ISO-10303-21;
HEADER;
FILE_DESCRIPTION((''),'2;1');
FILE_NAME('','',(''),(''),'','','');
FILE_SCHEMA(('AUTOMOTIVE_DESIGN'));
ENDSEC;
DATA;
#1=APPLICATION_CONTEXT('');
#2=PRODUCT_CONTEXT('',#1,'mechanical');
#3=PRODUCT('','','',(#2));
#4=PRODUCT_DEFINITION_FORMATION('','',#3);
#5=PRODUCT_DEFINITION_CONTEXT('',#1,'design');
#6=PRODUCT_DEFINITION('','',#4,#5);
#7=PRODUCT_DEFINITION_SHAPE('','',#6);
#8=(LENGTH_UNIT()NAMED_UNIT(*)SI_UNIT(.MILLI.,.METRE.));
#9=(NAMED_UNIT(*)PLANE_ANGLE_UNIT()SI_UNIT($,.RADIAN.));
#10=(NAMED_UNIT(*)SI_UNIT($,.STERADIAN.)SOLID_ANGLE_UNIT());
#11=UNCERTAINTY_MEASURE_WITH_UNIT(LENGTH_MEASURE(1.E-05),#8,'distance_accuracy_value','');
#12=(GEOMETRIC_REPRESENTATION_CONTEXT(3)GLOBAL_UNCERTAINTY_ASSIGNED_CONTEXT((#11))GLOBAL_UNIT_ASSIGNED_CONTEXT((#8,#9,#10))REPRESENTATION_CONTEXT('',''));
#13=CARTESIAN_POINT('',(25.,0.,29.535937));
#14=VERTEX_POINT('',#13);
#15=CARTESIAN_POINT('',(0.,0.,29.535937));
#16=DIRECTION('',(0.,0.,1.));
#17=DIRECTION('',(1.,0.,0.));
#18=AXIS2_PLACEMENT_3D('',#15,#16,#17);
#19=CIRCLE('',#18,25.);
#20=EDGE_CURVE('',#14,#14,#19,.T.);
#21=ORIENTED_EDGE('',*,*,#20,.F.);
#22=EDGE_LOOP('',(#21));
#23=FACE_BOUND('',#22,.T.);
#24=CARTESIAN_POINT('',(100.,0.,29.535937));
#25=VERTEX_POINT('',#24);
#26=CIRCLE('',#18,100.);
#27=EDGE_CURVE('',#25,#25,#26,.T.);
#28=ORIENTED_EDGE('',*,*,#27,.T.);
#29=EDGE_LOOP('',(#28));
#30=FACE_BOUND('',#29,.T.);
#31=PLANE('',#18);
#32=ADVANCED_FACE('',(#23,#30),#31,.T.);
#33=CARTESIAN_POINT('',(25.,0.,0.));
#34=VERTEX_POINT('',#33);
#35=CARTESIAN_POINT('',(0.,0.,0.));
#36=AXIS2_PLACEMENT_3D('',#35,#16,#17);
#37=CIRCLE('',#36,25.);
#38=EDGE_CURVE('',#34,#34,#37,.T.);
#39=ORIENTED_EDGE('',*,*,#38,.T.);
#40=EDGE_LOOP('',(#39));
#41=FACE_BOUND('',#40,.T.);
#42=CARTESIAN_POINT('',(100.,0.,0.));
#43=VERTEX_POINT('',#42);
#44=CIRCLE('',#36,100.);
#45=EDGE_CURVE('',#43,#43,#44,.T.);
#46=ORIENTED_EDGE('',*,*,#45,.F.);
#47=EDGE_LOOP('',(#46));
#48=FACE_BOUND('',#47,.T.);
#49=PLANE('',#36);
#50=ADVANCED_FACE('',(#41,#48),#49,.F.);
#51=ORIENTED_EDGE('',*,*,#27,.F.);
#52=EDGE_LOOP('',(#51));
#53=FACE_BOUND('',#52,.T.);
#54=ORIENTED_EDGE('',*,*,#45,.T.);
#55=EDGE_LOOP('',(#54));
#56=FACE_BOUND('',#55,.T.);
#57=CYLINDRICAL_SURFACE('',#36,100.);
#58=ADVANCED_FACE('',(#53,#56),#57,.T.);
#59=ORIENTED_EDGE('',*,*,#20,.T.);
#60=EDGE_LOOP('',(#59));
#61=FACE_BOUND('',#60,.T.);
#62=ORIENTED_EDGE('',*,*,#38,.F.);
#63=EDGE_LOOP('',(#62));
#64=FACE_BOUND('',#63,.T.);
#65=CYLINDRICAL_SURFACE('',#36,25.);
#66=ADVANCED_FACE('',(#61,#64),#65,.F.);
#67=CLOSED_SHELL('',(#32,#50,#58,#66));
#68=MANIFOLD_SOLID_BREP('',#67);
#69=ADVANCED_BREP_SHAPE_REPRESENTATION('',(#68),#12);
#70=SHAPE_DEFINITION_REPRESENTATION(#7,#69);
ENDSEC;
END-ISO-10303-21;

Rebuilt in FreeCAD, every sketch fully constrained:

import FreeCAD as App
import Part
import Sketcher
from FreeCAD import Vector

doc = App.newDocument("Part")
body = doc.addObject("PartDesign::Body", "Body")

# Sketch on XY plane
sketch1 = doc.addObject("Sketcher::SketchObject", "Sketch")
body.addObject(sketch1)
sketch1.AttachmentSupport = (doc.XY_Plane, [""])
sketch1.MapMode = "FlatFace"
sketch1.addGeometry(Part.Circle(Vector(0, 0, 0), Vector(0, 0, 1), 150), False)
sketch1.addConstraint([
    Sketcher.Constraint("Coincident", 0, 3, -1, 1),
    Sketcher.Constraint("Diameter", 0, 300.0),
])
pad1 = doc.addObject("PartDesign::Pad", "Pad")
body.addObject(pad1)
pad1.Profile = sketch1
pad1.Length = 29.535937

# Sketch on XY plane
sketch2 = doc.addObject("Sketcher::SketchObject", "Sketch001")
body.addObject(sketch2)
sketch2.AttachmentSupport = (doc.XY_Plane, [""])
sketch2.MapMode = "FlatFace"
sketch2.AttachmentOffset = App.Placement(Vector(0, 0, 29.535937), App.Rotation())
sketch2.addGeometry(Part.Circle(Vector(0, 0, 0), Vector(0, 0, 1), 25), False)
sketch2.addConstraint([
    Sketcher.Constraint("Coincident", 0, 3, -1, 1),
    Sketcher.Constraint("Diameter", 0, 50.0),
])
pocket1 = doc.addObject("PartDesign::Pocket", "Pocket")
body.addObject(pocket1)
pocket1.Profile = sketch2
pocket1.Length = 29.535937

# Sketch on XY plane
sketch3 = doc.addObject("Sketcher::SketchObject", "Sketch002")
body.addObject(sketch3)
sketch3.AttachmentSupport = (doc.XY_Plane, [""])
sketch3.MapMode = "FlatFace"
sketch3.addGeometry([
    Part.Circle(Vector(0, 0, 0), Vector(0, 0, 1), 150),
    Part.Circle(Vector(0, 0, 0), Vector(0, 0, 1), 100),
], False)
sketch3.addConstraint([
    Sketcher.Constraint("Coincident", 0, 3, -1, 1),
    Sketcher.Constraint("Coincident", 1, 3, -1, 1),
    Sketcher.Constraint("Diameter", 0, 300.0),
    Sketcher.Constraint("Diameter", 1, 200.0),
])
pocket2 = doc.addObject("PartDesign::Pocket", "Pocket001")
body.addObject(pocket2)
pocket2.Profile = sketch3
pocket2.Length = 29.535937
pocket2.Reversed = True

doc.recompute()
